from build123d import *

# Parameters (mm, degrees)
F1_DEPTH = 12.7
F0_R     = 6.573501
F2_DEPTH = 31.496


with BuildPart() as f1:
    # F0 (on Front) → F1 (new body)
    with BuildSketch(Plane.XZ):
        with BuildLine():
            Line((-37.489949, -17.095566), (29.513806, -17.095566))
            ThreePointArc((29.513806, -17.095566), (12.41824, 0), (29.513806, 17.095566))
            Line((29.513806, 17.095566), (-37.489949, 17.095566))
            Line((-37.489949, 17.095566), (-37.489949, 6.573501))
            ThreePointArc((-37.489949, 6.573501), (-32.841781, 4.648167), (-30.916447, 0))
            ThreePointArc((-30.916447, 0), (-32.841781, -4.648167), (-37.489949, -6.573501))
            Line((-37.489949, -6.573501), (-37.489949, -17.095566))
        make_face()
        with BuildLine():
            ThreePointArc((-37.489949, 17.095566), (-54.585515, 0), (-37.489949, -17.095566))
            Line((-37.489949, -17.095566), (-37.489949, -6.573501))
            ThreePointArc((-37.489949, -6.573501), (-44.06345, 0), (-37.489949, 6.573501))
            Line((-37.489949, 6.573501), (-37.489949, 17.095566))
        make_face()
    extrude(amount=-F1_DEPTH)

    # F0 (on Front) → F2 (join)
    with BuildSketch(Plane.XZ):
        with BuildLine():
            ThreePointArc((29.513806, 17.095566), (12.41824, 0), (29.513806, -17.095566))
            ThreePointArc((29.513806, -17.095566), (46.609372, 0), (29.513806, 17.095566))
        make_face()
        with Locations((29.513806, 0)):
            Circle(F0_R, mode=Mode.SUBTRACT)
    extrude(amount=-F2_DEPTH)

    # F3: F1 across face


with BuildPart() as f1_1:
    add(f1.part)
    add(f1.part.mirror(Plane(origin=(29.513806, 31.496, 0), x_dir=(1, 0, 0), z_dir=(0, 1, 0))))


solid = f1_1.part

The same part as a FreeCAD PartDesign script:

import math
import FreeCAD as App
import Part
import Sketcher
from FreeCAD import Vector
Q = App.Units.Quantity

doc = App.newDocument("Part")
body = doc.addObject("PartDesign::Body", "Body")

# Sketch on XZ plane
sketch1 = body.newObject("Sketcher::SketchObject", "Sketch")
sketch1.AttachmentSupport = (doc.getObject("XZ_Plane"), [""])
sketch1.MapMode = "FlatFace"
sketch1.addGeometry(Part.LineSegment(Vector(-37, -17, 0), Vector(30, -17, 0)), False)
sketch1.addGeometry(Part.ArcOfCircle(Part.Circle(Vector(30, 0, 0), Vector(0, 0, 1), 17), math.radians(90), math.radians(270)), False)
sketch1.addGeometry(Part.LineSegment(Vector(30, 17, 0), Vector(-37, 17, 0)), False)
sketch1.addGeometry(Part.ArcOfCircle(Part.Circle(Vector(-37, 0, 0), Vector(0, 0, 1), 17), math.radians(90), math.radians(270)), False)
sketch1.addGeometry(Part.ArcOfCircle(Part.Circle(Vector(-37, 0, 0), Vector(0, 0, 1), 7), math.radians(0), math.radians(90)), False)
sketch1.addGeometry(Part.ArcOfCircle(Part.Circle(Vector(-37, 0, 0), Vector(0, 0, 1), 7), math.radians(-90), math.radians(0)), False)
sketch1.addGeometry(Part.ArcOfCircle(Part.Circle(Vector(-37, 0, 0), Vector(0, 0, 1), 7), math.radians(90), math.radians(270)), False)
sketch1.addConstraint(Sketcher.Constraint("Tangent", 0, 2, 1, 2))
sketch1.addConstraint(Sketcher.Constraint("Tangent", 1, 1, 2, 1))
sketch1.addConstraint(Sketcher.Constraint("Tangent", 2, 2, 3, 1))
sketch1.addConstraint(Sketcher.Constraint("Tangent", 3, 2, 0, 1))
sketch1.addConstraint(Sketcher.Constraint("Tangent", 4, 1, 5, 2))
sketch1.addConstraint(Sketcher.Constraint("Tangent", 5, 1, 6, 2))
sketch1.addConstraint(Sketcher.Constraint("Tangent", 6, 1, 4, 2))
sketch1.addConstraint(Sketcher.Constraint("Horizontal", 0))
sketch1.addConstraint(Sketcher.Constraint("Horizontal", 2))
sketch1.addConstraint(Sketcher.Constraint("Coincident", 4, 3, 3, 3))
sketch1.addConstraint(Sketcher.Constraint("Symmetric", 5, 1, 6, 1, -1))
sketch1.addConstraint(Sketcher.Constraint("PointOnObject", 4, 1, -1))
sketch1.addConstraint(Sketcher.Constraint("Vertical", 3, 2, 5, 1))
sketch1.addConstraint(Sketcher.Constraint("Radius", 4, 6.573501))
sketch1.addConstraint(Sketcher.Constraint("Radius", 1, 17.095566))
sketch1.addConstraint(Sketcher.Constraint("DistanceX", 0, 1, 0, 2, 67.003755))
sketch1.addConstraint(Sketcher.Constraint("DistanceX", 3, 3, -1, 1, 37.489949))
pad1 = body.newObject("PartDesign::Pad", "Pad")
pad1.Profile = sketch1
pad1.Length = Q("0.5 in")
pad1.Reversed = True

# Sketch on XZ plane
sketch2 = body.newObject("Sketcher::SketchObject", "Sketch001")
sketch2.AttachmentSupport = (doc.getObject("XZ_Plane"), [""])
sketch2.MapMode = "FlatFace"
sketch2.addGeometry(Part.Circle(Vector(30, 0, 0), Vector(0, 0, 1), 17), False)
sketch2.addGeometry(Part.Circle(Vector(30, 0, 0), Vector(0, 0, 1), 7), False)
sketch2.addConstraint(Sketcher.Constraint("Coincident", 1, 3, 0, 3))
sketch2.addConstraint(Sketcher.Constraint("PointOnObject", 0, 3, -1))
sketch2.addConstraint(Sketcher.Constraint("Diameter", 0, 34.191132))
sketch2.addConstraint(Sketcher.Constraint("Diameter", 1, 13.147002))
sketch2.addConstraint(Sketcher.Constraint("DistanceX", -1, 1, 0, 3, 29.513806))
pad2 = body.newObject("PartDesign::Pad", "Pad001")
pad2.Profile = sketch2
pad2.Length = Q("1.24 in")
pad2.Reversed = True
body2 = doc.addObject("PartDesign::Body", "Body001")
doc.recompute()

body2.BaseFeature = body
doc.recompute()

mirroring = doc.addObject("Part::Mirroring", "Mirroring")
mirroring.Source = body
mirroring.Base = Vector(29.513806, 31.496, 0)
mirroring.Normal = Vector(0, 1, 0)
body3 = doc.addObject("PartDesign::Body", "Body002")
body3.BaseFeature = mirroring
boolean = body2.newObject("PartDesign::Boolean", "Boolean")
boolean.Type = "Fuse"
boolean.addObjects([body3])
doc.recompute()
mirroring.Visibility = False

doc.recompute()
